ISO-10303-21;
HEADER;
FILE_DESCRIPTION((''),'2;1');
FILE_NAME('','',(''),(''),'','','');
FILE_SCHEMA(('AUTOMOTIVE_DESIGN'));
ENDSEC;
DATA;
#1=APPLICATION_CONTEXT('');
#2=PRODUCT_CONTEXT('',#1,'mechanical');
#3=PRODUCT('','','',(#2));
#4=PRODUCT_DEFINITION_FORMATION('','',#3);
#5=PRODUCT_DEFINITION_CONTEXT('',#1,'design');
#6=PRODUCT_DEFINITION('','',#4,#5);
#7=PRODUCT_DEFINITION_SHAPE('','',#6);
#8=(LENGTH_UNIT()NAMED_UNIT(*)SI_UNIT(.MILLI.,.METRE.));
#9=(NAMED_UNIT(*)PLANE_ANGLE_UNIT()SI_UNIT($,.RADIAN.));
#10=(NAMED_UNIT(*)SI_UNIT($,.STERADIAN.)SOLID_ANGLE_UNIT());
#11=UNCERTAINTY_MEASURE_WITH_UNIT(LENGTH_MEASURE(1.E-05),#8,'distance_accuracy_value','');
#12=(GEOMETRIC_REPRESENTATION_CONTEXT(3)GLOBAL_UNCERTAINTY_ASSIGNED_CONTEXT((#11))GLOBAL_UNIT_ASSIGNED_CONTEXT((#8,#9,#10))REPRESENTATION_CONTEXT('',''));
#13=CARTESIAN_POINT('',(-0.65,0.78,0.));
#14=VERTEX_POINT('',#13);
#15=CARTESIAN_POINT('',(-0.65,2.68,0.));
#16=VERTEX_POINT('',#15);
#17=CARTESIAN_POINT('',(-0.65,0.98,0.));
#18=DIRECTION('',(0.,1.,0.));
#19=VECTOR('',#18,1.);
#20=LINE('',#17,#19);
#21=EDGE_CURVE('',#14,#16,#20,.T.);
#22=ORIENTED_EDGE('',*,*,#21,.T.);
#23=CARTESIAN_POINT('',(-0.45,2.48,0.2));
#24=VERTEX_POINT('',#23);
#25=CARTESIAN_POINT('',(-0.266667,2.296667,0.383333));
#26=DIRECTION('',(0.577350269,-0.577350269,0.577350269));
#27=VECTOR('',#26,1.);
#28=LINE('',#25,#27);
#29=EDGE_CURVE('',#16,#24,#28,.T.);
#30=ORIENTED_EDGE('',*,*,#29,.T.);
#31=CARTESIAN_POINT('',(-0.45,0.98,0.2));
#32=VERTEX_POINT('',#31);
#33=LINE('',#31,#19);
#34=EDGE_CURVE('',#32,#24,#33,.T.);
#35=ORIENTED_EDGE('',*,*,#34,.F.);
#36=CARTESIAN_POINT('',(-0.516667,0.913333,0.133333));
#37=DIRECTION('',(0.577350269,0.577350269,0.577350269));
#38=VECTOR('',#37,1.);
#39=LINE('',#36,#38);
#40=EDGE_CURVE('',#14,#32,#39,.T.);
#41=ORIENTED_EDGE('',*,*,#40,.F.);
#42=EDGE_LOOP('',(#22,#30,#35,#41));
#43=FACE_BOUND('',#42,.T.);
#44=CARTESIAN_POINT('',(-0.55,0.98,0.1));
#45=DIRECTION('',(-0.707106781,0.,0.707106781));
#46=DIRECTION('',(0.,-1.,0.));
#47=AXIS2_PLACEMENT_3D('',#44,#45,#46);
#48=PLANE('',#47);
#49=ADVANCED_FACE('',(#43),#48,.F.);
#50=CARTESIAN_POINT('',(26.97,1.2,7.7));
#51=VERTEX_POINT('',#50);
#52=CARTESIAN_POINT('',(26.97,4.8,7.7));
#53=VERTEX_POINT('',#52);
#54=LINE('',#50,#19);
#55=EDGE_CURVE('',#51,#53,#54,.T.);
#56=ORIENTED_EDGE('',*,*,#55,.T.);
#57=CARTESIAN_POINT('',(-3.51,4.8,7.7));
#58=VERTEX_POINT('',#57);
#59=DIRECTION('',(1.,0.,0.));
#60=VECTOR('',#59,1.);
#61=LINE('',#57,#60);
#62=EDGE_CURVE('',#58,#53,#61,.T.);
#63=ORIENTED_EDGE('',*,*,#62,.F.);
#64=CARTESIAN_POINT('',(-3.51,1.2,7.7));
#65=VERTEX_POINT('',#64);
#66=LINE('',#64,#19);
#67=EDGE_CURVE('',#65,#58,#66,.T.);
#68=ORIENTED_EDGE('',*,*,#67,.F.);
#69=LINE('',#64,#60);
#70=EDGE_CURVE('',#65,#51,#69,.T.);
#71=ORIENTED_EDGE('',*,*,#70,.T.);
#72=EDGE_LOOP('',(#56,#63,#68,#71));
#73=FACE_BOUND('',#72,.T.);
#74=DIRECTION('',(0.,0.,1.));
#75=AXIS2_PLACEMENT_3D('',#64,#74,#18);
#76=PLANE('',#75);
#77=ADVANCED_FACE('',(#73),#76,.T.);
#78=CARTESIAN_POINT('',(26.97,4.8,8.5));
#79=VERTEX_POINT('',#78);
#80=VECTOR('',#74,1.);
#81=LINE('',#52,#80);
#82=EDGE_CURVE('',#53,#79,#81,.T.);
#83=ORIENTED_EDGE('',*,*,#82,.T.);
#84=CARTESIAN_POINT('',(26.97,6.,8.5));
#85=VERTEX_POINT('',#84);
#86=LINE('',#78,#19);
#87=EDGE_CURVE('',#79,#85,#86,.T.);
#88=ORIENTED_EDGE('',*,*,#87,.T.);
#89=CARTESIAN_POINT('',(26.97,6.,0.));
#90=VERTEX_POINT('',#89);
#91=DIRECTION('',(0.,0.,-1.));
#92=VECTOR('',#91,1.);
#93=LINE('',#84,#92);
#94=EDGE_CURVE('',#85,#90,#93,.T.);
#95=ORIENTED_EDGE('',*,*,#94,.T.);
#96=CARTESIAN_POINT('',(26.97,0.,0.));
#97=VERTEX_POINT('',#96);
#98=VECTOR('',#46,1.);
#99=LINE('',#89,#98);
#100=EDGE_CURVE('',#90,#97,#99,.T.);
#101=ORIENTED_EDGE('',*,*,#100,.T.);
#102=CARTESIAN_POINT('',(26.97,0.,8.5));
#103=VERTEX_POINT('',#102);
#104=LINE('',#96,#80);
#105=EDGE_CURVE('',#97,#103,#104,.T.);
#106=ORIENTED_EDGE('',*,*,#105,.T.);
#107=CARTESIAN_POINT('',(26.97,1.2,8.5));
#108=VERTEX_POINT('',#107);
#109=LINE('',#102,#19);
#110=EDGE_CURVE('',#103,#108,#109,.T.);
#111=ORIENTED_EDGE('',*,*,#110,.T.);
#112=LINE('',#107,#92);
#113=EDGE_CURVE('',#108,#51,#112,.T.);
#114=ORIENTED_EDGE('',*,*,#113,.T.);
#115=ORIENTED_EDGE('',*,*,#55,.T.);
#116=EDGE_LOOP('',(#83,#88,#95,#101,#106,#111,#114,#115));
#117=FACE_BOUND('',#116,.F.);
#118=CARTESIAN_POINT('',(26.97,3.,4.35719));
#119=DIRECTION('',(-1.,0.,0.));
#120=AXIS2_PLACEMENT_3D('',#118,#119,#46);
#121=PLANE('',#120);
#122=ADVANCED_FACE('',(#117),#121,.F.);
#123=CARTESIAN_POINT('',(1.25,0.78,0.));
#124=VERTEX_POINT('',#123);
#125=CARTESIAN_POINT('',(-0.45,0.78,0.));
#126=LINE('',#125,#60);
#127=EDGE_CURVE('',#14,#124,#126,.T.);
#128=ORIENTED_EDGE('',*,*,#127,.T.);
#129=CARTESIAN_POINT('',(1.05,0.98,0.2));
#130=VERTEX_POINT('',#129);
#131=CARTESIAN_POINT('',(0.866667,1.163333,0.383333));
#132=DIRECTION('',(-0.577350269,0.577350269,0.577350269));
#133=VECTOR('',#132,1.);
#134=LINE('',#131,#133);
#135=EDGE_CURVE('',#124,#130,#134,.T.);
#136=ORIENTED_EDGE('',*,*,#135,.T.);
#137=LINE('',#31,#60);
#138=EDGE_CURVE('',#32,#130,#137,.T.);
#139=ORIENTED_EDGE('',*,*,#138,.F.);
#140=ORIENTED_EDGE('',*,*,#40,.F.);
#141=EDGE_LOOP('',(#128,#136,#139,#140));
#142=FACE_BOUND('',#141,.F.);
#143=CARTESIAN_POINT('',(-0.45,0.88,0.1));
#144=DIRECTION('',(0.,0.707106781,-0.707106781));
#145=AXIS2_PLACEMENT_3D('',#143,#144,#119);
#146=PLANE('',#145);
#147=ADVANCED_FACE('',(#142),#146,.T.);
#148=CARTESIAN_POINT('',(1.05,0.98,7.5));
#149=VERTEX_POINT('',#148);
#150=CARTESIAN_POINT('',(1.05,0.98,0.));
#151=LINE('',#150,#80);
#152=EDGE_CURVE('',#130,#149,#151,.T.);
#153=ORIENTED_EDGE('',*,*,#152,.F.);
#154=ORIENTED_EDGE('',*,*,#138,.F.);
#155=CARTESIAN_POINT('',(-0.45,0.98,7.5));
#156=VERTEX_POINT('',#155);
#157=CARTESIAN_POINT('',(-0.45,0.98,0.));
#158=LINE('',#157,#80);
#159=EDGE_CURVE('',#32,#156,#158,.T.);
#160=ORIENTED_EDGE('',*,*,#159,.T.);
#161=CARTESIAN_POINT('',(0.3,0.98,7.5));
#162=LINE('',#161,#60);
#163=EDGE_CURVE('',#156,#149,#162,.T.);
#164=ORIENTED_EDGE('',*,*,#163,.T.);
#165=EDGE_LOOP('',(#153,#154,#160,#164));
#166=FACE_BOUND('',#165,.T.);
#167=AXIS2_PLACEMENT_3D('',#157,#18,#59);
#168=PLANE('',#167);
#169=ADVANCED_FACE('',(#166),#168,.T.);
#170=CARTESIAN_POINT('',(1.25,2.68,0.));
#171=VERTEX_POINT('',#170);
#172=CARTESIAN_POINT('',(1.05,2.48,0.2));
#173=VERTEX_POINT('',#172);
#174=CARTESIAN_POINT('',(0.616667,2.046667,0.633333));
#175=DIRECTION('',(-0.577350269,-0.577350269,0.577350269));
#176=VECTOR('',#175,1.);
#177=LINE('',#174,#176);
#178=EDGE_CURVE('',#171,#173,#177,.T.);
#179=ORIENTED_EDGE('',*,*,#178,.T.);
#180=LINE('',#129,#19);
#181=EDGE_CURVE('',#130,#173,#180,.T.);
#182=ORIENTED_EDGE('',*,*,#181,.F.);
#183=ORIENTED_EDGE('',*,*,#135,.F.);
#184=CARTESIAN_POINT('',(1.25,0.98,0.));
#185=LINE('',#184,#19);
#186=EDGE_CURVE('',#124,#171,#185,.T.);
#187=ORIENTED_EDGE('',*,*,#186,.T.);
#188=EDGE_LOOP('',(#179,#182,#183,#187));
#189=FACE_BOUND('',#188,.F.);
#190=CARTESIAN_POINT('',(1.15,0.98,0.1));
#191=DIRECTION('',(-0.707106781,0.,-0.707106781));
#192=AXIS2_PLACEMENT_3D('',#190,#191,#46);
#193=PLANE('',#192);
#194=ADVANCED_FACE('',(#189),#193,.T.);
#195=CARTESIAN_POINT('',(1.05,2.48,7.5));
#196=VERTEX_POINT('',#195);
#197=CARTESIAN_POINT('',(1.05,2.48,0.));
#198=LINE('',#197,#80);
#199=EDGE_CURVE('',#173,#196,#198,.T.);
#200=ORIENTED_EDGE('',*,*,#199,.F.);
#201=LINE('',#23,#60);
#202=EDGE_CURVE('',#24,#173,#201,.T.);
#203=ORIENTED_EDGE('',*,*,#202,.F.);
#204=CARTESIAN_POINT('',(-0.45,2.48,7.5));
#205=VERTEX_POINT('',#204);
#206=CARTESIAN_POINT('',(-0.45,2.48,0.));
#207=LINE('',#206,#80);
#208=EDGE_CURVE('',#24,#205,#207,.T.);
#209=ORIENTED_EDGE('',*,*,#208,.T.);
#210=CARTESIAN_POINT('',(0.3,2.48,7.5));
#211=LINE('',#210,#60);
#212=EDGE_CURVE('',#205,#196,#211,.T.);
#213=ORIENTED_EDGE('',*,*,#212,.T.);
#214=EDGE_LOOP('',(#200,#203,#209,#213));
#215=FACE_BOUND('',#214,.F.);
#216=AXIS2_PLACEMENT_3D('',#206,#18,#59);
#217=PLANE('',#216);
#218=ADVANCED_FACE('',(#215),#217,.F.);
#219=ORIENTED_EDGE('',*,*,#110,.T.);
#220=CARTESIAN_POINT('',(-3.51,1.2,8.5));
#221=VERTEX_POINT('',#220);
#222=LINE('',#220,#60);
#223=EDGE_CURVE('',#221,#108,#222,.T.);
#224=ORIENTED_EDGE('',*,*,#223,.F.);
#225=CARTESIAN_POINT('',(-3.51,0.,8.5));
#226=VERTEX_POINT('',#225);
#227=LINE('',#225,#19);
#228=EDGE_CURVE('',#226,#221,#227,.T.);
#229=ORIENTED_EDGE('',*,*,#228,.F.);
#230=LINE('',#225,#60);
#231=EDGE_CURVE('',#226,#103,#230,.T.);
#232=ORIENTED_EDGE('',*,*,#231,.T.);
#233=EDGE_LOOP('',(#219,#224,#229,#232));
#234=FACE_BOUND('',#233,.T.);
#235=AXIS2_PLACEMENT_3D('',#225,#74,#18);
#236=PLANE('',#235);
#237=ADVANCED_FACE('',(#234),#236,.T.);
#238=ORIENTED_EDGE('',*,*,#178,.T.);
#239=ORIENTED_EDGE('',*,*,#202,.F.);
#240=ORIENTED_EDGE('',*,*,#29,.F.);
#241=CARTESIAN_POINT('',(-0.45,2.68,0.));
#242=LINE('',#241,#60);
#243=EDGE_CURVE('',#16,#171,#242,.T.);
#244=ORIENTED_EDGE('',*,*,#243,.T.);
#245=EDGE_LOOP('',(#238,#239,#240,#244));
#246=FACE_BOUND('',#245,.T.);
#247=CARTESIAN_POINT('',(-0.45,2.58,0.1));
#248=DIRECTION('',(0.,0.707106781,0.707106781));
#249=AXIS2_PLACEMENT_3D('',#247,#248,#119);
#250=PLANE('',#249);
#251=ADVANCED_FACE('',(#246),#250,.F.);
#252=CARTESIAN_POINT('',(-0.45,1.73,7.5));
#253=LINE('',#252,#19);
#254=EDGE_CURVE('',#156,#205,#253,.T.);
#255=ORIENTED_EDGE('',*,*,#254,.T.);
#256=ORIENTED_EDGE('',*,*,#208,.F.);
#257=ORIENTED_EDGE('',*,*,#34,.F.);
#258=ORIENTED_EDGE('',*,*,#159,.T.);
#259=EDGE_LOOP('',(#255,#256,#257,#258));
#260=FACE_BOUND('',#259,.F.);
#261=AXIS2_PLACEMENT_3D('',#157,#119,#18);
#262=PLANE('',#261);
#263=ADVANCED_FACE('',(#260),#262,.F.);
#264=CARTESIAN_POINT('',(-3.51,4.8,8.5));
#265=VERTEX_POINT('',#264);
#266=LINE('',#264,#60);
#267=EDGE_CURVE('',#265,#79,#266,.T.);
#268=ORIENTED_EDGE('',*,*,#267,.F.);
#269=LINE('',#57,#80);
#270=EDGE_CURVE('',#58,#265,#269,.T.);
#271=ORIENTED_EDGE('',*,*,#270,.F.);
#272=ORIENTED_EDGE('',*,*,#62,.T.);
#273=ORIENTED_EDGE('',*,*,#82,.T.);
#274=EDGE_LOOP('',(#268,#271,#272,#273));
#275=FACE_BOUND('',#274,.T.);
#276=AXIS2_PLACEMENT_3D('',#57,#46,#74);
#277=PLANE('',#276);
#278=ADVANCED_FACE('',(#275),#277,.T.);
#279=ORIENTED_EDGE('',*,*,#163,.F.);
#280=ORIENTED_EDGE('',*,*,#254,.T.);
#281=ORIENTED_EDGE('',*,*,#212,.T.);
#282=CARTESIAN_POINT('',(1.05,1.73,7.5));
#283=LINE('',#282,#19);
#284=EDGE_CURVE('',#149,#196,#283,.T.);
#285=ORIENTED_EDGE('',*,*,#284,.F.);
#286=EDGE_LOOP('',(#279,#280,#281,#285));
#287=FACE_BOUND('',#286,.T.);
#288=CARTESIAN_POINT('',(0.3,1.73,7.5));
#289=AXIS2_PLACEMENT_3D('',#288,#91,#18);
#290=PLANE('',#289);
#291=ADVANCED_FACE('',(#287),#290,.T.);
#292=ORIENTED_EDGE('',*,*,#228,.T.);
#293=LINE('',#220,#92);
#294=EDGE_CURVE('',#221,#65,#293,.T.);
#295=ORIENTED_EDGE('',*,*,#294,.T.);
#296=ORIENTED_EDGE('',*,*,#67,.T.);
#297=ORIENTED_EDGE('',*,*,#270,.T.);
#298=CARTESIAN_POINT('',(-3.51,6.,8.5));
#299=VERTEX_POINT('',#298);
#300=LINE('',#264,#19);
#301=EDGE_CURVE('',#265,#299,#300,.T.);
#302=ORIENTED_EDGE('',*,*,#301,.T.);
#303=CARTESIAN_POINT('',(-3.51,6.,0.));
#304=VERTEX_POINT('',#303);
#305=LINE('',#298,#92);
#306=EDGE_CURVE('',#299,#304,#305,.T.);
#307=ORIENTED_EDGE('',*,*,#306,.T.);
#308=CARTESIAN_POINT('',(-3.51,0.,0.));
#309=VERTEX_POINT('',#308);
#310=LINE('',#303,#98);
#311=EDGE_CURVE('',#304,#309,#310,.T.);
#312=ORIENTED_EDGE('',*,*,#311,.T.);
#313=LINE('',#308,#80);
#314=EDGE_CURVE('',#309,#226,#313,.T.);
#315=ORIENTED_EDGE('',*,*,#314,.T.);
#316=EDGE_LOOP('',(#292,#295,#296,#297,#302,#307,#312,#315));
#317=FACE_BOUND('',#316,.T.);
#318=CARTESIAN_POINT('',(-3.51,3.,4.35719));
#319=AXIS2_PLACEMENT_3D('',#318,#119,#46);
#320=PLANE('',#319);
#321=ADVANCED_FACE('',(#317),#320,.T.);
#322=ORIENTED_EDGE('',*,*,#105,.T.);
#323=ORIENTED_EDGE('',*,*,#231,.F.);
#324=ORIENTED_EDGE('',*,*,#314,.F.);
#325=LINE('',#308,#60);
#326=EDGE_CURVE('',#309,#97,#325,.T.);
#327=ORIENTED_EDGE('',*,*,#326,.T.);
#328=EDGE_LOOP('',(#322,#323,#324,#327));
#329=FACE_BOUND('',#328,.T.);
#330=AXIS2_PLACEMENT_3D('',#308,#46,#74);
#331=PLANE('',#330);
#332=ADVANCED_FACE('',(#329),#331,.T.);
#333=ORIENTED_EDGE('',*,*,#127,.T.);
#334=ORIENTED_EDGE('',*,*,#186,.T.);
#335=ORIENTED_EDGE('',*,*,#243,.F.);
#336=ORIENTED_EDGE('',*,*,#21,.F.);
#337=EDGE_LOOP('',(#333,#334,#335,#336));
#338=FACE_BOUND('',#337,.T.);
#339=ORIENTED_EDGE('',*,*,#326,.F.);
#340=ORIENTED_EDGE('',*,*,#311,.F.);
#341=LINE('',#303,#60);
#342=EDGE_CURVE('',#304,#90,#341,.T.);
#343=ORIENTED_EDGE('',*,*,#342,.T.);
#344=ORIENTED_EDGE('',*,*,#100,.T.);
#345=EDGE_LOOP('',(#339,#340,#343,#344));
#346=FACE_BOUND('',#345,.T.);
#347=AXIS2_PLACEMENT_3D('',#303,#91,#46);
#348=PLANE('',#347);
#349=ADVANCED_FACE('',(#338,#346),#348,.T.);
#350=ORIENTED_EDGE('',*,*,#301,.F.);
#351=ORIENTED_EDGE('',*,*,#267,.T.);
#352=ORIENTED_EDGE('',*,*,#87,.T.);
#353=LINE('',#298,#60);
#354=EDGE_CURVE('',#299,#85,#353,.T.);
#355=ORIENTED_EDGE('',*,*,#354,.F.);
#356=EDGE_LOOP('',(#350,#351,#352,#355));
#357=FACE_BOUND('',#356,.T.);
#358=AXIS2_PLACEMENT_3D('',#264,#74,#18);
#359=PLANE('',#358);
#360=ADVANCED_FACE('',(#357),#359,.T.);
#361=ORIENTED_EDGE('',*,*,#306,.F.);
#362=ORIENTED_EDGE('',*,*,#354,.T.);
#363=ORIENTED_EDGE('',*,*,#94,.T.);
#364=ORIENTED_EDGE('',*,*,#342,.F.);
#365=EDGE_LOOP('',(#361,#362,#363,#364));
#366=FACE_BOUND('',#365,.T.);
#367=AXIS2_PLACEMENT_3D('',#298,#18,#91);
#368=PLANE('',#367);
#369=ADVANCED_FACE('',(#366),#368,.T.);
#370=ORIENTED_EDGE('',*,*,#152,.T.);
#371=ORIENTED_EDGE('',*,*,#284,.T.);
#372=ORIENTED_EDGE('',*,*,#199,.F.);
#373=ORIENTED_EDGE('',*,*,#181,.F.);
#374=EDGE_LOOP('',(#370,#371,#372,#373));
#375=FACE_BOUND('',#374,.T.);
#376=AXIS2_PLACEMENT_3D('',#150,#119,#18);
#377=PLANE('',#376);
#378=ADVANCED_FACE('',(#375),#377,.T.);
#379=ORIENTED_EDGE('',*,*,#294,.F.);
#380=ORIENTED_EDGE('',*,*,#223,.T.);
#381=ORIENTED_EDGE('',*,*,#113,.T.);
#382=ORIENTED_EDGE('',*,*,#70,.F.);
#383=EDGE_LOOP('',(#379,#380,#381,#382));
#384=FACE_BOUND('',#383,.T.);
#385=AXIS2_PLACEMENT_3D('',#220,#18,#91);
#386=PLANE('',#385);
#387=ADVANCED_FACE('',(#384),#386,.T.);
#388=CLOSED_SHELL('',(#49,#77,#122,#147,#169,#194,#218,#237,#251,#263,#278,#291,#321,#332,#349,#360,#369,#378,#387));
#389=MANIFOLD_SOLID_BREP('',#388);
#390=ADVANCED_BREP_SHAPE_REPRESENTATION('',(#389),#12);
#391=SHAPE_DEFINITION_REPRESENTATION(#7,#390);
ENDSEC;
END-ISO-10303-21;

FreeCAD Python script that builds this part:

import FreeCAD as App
import Part
import Sketcher
from FreeCAD import Vector
Q = App.Units.Quantity


def edges_at(feature, points):
    """Names of the edges that pass closest to the given points."""
    edges = feature.Shape.Edges
    near = lambda p: min(range(len(edges)), key=lambda i: edges[i].distToShape(Part.Vertex(*p))[0])
    return sorted({f"Edge{near(p) + 1}" for p in points})

doc = App.newDocument("Part")
body = doc.addObject("PartDesign::Body", "Body")

sketch1 = body.newObject("Sketcher::SketchObject", "Sketch")
sketch1.AttachmentSupport = (doc.getObject("YZ_Plane"), [""])
sketch1.MapMode = "FlatFace"
sketch1.AttachmentOffset = App.Placement(Vector(0, 0, -3.51), App.Rotation())
sketch1.addGeometry(Part.LineSegment(Vector(1.2, 8.5, 0), Vector(0, 8.5, 0)), False)
sketch1.addGeometry(Part.LineSegment(Vector(0, 8.5, 0), Vector(0, 0, 0)), False)
sketch1.addGeometry(Part.LineSegment(Vector(0, 0, 0), Vector(6, 0, 0)), False)
sketch1.addGeometry(Part.LineSegment(Vector(6, 0, 0), Vector(6, 8.5, 0)), False)
sketch1.addGeometry(Part.LineSegment(Vector(6, 8.5, 0), Vector(4.8, 8.5, 0)), False)
sketch1.addGeometry(Part.LineSegment(Vector(4.8, 8.5, 0), Vector(4.8, 7.7, 0)), False)
sketch1.addGeometry(Part.LineSegment(Vector(4.8, 7.7, 0), Vector(1.2, 7.7, 0)), False)
sketch1.addGeometry(Part.LineSegment(Vector(1.2, 7.7, 0), Vector(1.2, 8.5, 0)), False)
sketch1.addConstraint(Sketcher.Constraint("Coincident", 0, 2, 1, 1))
sketch1.addConstraint(Sketcher.Constraint("Coincident", 1, 2, 2, 1))
sketch1.addConstraint(Sketcher.Constraint("Coincident", 2, 2, 3, 1))
sketch1.addConstraint(Sketcher.Constraint("Coincident", 3, 2, 4, 1))
sketch1.addConstraint(Sketcher.Constraint("Coincident", 4, 2, 5, 1))
sketch1.addConstraint(Sketcher.Constraint("Coincident", 5, 2, 6, 1))
sketch1.addConstraint(Sketcher.Constraint("Coincident", 6, 2, 7, 1))
sketch1.addConstraint(Sketcher.Constraint("Coincident", 7, 2, 0, 1))
sketch1.addConstraint(Sketcher.Constraint("Horizontal", 0))
sketch1.addConstraint(Sketcher.Constraint("Vertical", 1))
sketch1.addConstraint(Sketcher.Constraint("Horizontal", 2))
sketch1.addConstraint(Sketcher.Constraint("Vertical", 3))
sketch1.addConstraint(Sketcher.Constraint("Horizontal", 4))
sketch1.addConstraint(Sketcher.Constraint("Vertical", 5))
sketch1.addConstraint(Sketcher.Constraint("Horizontal", 6))
sketch1.addConstraint(Sketcher.Constraint("Vertical", 7))
sketch1.addConstraint(Sketcher.Constraint("Coincident", 1, 2, -1, 1))
sketch1.addConstraint(Sketcher.Constraint("Horizontal", 0, 2, 3, 2))
sketch1.addConstraint(Sketcher.Constraint("Equal", 0, 4))
sketch1.addConstraint(Sketcher.Constraint("DistanceX", 2, 1, 2, 2, Q("6 mm")))
sketch1.addConstraint(Sketcher.Constraint("DistanceX", 0, 2, 0, 1, Q("1.2 mm")))
sketch1.addConstraint(Sketcher.Constraint("DistanceY", 1, 2, 1, 1, Q("8.5 mm")))
sketch1.addConstraint(Sketcher.Constraint("DistanceY", 5, 2, 5, 1, Q("0.8 mm")))
pad1 = body.newObject("PartDesign::Pad", "Pad")
pad1.Profile = sketch1
pad1.Length = 30.48

sketch2 = body.newObject("Sketcher::SketchObject", "Sketch001")
sketch2.AttachmentSupport = (doc.getObject("XY_Plane"), [""])
sketch2.MapMode = "FlatFace"
sketch2.addGeometry(Part.LineSegment(Vector(1.1, 1, 0), Vector(-0.5, 1, 0)), False)
sketch2.addGeometry(Part.LineSegment(Vector(-0.5, 1, 0), Vector(-0.5, 2.5, 0)), False)
sketch2.addGeometry(Part.LineSegment(Vector(-0.5, 2.5, 0), Vector(1.1, 2.5, 0)), False)
sketch2.addGeometry(Part.LineSegment(Vector(1.1, 2.5, 0), Vector(1.1, 1, 0)), False)
sketch2.addConstraint(Sketcher.Constraint("Coincident", 0, 2, 1, 1))
sketch2.addConstraint(Sketcher.Constraint("Coincident", 1, 2, 2, 1))
sketch2.addConstraint(Sketcher.Constraint("Coincident", 2, 2, 3, 1))
sketch2.addConstraint(Sketcher.Constraint("Coincident", 3, 2, 0, 1))
sketch2.addConstraint(Sketcher.Constraint("Horizontal", 0))
sketch2.addConstraint(Sketcher.Constraint("Vertical", 1))
sketch2.addConstraint(Sketcher.Constraint("Horizontal", 2))
sketch2.addConstraint(Sketcher.Constraint("Vertical", 3))
sketch2.addConstraint(Sketcher.Constraint("Equal", 2, 1))
sketch2.addConstraint(Sketcher.Constraint("DistanceX", 0, 2, 0, 1, Q("1.5 mm")))
sketch2.addConstraint(Sketcher.Constraint("DistanceX", 0, 2, -1, 1, Q("0.45 mm")))
sketch2.addConstraint(Sketcher.Constraint("DistanceY", -1, 1, 0, 2, Q("0.98 mm")))
pocket1 = body.newObject("PartDesign::Pocket", "Pocket")
pocket1.Profile = sketch2
pocket1.Length = 7.5
pocket1.Reversed = True
doc.recompute()

chamfer = body.newObject("PartDesign::Chamfer", "Chamfer")
chamfer.Base = (pocket1, edges_at(pocket1, [
    (-0.45, 1.73, 0),
    (0.3, 2.48, 0),
    (1.05, 1.73, 0),
    (0.3, 0.98, 0),
]))
chamfer.Size = 0.2

doc.recompute()
